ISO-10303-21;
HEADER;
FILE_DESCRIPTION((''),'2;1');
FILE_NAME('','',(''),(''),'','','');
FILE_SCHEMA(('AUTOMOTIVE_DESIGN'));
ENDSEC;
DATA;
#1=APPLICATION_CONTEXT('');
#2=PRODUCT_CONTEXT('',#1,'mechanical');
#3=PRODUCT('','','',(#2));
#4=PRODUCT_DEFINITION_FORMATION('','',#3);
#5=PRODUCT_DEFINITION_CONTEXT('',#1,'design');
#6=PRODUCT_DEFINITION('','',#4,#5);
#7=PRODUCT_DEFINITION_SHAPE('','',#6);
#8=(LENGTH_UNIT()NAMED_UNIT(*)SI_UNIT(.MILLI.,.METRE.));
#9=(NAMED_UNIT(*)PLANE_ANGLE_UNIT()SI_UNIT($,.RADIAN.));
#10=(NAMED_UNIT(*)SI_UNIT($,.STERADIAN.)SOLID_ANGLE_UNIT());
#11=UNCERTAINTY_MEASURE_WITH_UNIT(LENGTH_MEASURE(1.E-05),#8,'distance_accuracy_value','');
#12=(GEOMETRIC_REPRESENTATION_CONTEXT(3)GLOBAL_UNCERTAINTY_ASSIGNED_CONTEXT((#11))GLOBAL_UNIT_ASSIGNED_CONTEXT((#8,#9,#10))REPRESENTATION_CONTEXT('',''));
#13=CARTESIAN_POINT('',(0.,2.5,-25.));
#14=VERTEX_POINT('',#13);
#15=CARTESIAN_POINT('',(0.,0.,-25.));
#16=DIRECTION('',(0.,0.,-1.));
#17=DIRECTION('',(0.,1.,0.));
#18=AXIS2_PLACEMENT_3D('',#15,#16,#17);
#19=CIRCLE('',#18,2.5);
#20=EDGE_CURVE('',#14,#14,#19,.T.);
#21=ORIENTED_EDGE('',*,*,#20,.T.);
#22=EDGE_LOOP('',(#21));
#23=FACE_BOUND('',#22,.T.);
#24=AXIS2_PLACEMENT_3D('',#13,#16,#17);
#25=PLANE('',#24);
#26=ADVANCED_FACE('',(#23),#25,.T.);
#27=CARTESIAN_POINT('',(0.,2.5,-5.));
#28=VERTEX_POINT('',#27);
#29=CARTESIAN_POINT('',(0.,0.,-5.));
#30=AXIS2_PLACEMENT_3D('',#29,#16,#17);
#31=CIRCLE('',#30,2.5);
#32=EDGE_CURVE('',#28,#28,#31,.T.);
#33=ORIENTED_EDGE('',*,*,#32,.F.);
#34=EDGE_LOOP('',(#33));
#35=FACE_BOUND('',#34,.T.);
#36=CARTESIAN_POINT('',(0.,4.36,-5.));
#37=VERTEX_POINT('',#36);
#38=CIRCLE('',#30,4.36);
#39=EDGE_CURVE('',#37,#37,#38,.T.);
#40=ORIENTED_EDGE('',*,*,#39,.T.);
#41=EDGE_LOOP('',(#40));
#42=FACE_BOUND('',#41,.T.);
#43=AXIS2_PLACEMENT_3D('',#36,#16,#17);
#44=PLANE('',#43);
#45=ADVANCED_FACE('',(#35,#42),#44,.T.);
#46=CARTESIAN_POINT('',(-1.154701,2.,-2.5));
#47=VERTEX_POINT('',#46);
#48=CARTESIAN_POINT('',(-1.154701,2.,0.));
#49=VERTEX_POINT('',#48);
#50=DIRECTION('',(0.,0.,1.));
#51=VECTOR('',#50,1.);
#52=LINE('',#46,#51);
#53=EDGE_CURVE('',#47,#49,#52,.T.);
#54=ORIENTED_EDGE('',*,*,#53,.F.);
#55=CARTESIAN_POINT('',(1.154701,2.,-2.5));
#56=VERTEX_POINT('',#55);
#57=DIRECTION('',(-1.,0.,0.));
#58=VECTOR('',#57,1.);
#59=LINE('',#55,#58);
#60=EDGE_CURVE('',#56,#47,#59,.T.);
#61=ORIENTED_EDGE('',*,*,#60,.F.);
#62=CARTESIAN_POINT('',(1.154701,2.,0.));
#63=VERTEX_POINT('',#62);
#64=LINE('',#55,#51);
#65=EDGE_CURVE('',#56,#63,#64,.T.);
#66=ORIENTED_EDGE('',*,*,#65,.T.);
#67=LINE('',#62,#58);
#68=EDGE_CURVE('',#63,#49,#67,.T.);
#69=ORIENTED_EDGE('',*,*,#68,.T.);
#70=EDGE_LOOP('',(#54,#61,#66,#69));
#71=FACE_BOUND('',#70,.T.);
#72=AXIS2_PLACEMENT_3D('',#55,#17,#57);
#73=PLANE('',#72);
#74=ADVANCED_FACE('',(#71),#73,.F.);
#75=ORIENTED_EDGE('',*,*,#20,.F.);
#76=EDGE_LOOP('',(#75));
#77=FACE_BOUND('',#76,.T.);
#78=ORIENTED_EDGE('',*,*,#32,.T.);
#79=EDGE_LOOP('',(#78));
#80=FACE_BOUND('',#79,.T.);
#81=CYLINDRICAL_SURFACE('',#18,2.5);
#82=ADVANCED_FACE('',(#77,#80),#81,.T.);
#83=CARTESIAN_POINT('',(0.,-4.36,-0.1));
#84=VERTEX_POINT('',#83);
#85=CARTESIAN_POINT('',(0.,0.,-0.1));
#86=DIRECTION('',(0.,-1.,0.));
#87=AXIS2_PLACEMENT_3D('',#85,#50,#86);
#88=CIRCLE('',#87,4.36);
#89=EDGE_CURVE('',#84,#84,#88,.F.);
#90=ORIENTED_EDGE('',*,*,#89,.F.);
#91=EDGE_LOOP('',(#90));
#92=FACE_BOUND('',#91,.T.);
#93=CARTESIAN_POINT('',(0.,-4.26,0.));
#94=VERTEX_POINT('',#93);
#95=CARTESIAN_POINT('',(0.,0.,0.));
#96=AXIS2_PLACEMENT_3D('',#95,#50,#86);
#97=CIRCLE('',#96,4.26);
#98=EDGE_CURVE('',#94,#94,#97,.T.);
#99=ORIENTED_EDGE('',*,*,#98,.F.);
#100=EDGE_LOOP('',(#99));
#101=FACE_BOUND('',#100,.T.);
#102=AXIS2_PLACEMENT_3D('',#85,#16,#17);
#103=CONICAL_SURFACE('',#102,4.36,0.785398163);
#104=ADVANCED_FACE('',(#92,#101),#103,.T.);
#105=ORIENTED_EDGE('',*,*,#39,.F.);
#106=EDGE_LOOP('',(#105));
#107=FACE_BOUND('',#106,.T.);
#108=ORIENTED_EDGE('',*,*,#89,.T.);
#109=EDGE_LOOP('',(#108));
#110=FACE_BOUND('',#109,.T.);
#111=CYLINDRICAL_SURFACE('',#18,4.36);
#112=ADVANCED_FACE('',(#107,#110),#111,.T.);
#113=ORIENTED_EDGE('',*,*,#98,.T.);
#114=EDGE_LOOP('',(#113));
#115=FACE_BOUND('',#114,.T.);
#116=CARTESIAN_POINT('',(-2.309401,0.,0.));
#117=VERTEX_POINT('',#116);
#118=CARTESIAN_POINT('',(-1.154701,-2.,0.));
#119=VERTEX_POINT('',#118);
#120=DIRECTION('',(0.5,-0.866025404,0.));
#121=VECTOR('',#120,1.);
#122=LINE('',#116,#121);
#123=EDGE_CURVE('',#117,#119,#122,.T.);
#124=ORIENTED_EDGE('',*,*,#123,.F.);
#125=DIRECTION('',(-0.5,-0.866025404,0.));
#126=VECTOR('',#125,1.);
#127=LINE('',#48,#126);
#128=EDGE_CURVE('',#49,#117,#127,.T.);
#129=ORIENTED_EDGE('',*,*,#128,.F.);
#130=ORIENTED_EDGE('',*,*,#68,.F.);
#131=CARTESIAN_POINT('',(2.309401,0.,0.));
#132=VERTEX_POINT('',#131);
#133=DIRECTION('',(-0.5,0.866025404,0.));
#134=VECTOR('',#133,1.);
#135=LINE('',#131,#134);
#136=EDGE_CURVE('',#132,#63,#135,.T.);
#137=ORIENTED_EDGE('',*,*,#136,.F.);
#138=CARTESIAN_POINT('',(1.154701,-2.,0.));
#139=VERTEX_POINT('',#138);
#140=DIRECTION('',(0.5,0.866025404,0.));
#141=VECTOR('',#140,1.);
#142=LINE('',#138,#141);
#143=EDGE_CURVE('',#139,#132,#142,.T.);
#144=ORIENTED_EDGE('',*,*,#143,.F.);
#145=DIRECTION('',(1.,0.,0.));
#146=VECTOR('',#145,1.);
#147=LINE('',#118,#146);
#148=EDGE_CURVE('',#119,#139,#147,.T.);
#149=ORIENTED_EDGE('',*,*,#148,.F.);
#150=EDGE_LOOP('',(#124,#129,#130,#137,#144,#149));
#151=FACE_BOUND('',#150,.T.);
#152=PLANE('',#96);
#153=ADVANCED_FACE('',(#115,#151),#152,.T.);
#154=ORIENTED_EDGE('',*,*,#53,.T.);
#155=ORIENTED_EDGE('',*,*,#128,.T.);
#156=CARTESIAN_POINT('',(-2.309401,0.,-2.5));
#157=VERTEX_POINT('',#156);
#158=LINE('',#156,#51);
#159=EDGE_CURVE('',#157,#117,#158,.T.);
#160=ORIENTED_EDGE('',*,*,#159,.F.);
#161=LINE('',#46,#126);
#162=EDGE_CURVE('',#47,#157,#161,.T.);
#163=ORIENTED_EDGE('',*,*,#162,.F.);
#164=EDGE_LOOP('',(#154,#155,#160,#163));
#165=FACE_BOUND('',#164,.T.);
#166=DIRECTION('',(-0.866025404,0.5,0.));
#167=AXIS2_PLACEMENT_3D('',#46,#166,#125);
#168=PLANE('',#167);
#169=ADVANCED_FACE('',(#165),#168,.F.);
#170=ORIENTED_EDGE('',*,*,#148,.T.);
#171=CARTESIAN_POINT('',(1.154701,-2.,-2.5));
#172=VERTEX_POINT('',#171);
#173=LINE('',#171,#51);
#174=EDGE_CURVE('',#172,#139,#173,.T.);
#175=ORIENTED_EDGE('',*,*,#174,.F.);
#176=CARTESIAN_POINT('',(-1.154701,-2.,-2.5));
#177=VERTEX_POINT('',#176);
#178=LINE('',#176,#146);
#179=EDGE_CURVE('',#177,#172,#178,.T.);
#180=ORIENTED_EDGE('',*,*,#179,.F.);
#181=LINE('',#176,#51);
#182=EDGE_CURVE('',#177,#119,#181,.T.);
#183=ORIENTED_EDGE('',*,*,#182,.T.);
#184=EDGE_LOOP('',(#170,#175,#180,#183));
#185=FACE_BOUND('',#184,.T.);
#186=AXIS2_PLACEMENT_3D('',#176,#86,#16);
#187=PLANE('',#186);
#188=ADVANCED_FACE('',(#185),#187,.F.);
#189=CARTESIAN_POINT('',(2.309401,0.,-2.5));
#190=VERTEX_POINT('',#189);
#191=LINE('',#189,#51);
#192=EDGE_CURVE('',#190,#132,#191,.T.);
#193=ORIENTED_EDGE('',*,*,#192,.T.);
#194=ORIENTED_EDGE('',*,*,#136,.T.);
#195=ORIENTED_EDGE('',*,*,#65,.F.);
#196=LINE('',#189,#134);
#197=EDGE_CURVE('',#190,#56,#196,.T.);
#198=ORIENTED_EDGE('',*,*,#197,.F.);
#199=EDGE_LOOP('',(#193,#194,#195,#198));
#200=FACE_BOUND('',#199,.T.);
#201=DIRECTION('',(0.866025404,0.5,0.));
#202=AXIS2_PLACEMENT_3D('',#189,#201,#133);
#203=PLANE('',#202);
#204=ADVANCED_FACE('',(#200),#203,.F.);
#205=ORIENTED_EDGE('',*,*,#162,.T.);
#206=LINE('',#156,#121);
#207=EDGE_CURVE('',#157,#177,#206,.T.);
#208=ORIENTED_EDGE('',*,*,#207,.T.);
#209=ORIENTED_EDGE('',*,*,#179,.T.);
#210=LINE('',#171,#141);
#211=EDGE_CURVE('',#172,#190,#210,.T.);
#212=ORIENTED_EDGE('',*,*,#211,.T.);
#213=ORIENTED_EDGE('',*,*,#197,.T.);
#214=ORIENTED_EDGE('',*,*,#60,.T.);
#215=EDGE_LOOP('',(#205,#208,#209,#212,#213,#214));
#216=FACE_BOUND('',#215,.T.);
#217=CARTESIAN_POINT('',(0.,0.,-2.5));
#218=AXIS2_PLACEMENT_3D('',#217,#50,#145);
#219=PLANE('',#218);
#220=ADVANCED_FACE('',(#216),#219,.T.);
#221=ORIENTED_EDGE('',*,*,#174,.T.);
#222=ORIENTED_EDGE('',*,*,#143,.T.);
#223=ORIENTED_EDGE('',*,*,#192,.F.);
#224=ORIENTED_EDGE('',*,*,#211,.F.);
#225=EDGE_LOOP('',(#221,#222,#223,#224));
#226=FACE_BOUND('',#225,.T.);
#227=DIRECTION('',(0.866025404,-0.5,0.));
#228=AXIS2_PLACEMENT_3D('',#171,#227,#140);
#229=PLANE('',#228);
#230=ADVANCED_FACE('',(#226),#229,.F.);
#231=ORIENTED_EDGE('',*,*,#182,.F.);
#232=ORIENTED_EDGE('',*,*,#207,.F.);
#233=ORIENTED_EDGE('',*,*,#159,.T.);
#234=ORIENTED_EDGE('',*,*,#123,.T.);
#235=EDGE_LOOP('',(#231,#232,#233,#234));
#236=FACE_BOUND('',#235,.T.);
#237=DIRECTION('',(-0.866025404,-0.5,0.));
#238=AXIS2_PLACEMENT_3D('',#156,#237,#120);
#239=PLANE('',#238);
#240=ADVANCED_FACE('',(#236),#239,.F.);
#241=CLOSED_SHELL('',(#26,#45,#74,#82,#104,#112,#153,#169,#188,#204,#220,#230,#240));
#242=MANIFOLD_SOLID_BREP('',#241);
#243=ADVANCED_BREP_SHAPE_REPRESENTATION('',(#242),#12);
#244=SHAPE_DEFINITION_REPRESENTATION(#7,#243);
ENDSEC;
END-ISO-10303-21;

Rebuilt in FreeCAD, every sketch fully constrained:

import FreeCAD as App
import Part
import Sketcher

V = App.Vector
Q = App.Units.Quantity


def edges_at(feature, points):
    """Names of the edges that pass closest to the given points."""
    edges = feature.Shape.Edges
    near = lambda p: min(range(len(edges)), key=lambda i: edges[i].distToShape(Part.Vertex(*p))[0])
    return sorted({f"Edge{near(p) + 1}" for p in points})


def add_polygon(sketch, points):
    """Adds a closed chain of lines whose ends are joined by coincident constraints."""
    first, n = sketch.GeometryCount, len(points)
    for a, b in zip(points, points[1:] + points[:1]):
        sketch.addGeometry(Part.LineSegment(App.Vector(*a, 0), App.Vector(*b, 0)), False)
    for i in range(n):
        sketch.addConstraint(Sketcher.Constraint("Coincident", first + i, 2, first + (i + 1) % n, 1))

doc = App.newDocument("Part")
body = doc.addObject("PartDesign::Body", "Body")

# Sketch on YZ plane
sketch1 = doc.addObject("Sketcher::SketchObject", "Sketch")
body.addObject(sketch1)
sketch1.AttachmentSupport = (doc.YZ_Plane, [""])
sketch1.MapMode = "FlatFace"
add_polygon(sketch1, [(4.4, 0), (0, 0), (0, -25), (2.5, -25), (2.5, -5), (4.4, -5)])  # lines 0-5
sketch1.addConstraint([
    Sketcher.Constraint("Horizontal", 0),
    Sketcher.Constraint("Vertical", 1),
    Sketcher.Constraint("Horizontal", 2),
    Sketcher.Constraint("Vertical", 3),
    Sketcher.Constraint("Horizontal", 4),
    Sketcher.Constraint("Vertical", 5),
    Sketcher.Constraint("Coincident", 0, 2, -1, 1),
    Sketcher.Constraint("DistanceY", 1, 2, 1, 1, Q("25 mm")),
    Sketcher.Constraint("DistanceY", 3, 1, 3, 2, Q("20 mm")),
    Sketcher.Constraint("DistanceX", 2, 1, 2, 2, Q("2.5 mm")),
    Sketcher.Constraint("DistanceX", 0, 2, 0, 1, Q("4.36 mm")),
])
revolution = doc.addObject("PartDesign::Revolution", "Revolution")
body.addObject(revolution)
revolution.Profile = sketch1
revolution.ReferenceAxis = (sketch1, ["V_Axis"])
revolution.Angle = 360

# Sketch on XY plane
sketch2 = doc.addObject("Sketcher::SketchObject", "Sketch001")
body.addObject(sketch2)
sketch2.AttachmentSupport = (doc.XY_Plane, [""])
sketch2.MapMode = "FlatFace"
add_polygon(sketch2, [(1.2, 2), (-1.2, 2), (-2.3, 0), (-1.2, -2), (1.2, -2), (2.3, 0)])  # lines 0-5
sketch2.addConstraint([
    Sketcher.Constraint("Horizontal", 0),
    Sketcher.Constraint("Horizontal", 3),
    Sketcher.Constraint("Symmetric", 0, 2, 3, 2, -1, 1),
    Sketcher.Constraint("Symmetric", 1, 2, 4, 2, -1, 1),
    Sketcher.Constraint("PointOnObject", 1, 2, -1),
    Sketcher.Constraint("Parallel", 2, 5),
    Sketcher.Constraint("Vertical", 0, 2, 2, 2),
    Sketcher.Constraint("Angle", 1, Q("-120 deg")),
    Sketcher.Constraint("DistanceY", -1, 1, 0, 2, Q("2 mm")),
    Sketcher.Constraint("DistanceX", 0, 2, 0, 1, Q("2.309401 mm")),
])
pocket1 = doc.addObject("PartDesign::Pocket", "Pocket")
body.addObject(pocket1)
pocket1.Profile = sketch2
pocket1.Length = 2.5
doc.recompute()

chamfer = doc.addObject("PartDesign::Chamfer", "Chamfer")
body.addObject(chamfer)
chamfer.Base = (pocket1, edges_at(pocket1, [(0, -4.36, 0)]))
chamfer.Size = 0.1

doc.recompute()
